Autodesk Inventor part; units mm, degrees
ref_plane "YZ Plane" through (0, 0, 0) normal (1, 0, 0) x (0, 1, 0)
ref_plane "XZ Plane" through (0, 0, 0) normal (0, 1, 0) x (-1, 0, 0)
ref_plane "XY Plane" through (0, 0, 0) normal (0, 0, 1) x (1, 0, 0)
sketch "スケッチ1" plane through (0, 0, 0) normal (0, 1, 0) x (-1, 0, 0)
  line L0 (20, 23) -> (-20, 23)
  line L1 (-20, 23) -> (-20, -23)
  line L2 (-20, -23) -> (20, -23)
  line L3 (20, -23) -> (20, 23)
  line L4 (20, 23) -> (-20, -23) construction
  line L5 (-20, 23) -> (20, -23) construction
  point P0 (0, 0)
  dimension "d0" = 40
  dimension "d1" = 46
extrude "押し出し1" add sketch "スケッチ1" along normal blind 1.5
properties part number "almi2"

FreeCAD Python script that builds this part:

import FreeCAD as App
import Part
import Sketcher
from FreeCAD import Vector
Q = App.Units.Quantity


def add_polygon(sketch, points):
    """Adds a closed chain of lines whose ends are joined by coincident constraints."""
    first, n = sketch.GeometryCount, len(points)
    for a, b in zip(points, points[1:] + points[:1]):
        sketch.addGeometry(Part.LineSegment(App.Vector(*a, 0), App.Vector(*b, 0)), False)
    for i in range(n):
        sketch.addConstraint(Sketcher.Constraint("Coincident", first + i, 2, first + (i + 1) % n, 1))

doc = App.newDocument("Part")
body = doc.addObject("PartDesign::Body", "Body")

# Sketch on XZ plane
sketch1 = body.newObject("Sketcher::SketchObject", "Sketch")
sketch1.AttachmentSupport = (doc.getObject("XZ_Plane"), [""])
sketch1.MapMode = "FlatFace"
add_polygon(sketch1, [(-20, -23), (-20, 23), (20, 23), (20, -23)])  # lines 0-3
sketch1.addConstraint([
    Sketcher.Constraint("Vertical", 0),
    Sketcher.Constraint("Horizontal", 1),
    Sketcher.Constraint("Vertical", 2),
    Sketcher.Constraint("Horizontal", 3),
    Sketcher.Constraint("Symmetric", 0, 2, 2, 2, -1, 1),
    Sketcher.Constraint("DistanceX", 1, 1, 1, 2, Q("40 mm")),
    Sketcher.Constraint("DistanceY", 0, 1, 0, 2, Q("46 mm")),
])
pad1 = body.newObject("PartDesign::Pad", "Pad")
pad1.Profile = sketch1
pad1.Length = 1.5
pad1.Reversed = True

doc.recompute()
